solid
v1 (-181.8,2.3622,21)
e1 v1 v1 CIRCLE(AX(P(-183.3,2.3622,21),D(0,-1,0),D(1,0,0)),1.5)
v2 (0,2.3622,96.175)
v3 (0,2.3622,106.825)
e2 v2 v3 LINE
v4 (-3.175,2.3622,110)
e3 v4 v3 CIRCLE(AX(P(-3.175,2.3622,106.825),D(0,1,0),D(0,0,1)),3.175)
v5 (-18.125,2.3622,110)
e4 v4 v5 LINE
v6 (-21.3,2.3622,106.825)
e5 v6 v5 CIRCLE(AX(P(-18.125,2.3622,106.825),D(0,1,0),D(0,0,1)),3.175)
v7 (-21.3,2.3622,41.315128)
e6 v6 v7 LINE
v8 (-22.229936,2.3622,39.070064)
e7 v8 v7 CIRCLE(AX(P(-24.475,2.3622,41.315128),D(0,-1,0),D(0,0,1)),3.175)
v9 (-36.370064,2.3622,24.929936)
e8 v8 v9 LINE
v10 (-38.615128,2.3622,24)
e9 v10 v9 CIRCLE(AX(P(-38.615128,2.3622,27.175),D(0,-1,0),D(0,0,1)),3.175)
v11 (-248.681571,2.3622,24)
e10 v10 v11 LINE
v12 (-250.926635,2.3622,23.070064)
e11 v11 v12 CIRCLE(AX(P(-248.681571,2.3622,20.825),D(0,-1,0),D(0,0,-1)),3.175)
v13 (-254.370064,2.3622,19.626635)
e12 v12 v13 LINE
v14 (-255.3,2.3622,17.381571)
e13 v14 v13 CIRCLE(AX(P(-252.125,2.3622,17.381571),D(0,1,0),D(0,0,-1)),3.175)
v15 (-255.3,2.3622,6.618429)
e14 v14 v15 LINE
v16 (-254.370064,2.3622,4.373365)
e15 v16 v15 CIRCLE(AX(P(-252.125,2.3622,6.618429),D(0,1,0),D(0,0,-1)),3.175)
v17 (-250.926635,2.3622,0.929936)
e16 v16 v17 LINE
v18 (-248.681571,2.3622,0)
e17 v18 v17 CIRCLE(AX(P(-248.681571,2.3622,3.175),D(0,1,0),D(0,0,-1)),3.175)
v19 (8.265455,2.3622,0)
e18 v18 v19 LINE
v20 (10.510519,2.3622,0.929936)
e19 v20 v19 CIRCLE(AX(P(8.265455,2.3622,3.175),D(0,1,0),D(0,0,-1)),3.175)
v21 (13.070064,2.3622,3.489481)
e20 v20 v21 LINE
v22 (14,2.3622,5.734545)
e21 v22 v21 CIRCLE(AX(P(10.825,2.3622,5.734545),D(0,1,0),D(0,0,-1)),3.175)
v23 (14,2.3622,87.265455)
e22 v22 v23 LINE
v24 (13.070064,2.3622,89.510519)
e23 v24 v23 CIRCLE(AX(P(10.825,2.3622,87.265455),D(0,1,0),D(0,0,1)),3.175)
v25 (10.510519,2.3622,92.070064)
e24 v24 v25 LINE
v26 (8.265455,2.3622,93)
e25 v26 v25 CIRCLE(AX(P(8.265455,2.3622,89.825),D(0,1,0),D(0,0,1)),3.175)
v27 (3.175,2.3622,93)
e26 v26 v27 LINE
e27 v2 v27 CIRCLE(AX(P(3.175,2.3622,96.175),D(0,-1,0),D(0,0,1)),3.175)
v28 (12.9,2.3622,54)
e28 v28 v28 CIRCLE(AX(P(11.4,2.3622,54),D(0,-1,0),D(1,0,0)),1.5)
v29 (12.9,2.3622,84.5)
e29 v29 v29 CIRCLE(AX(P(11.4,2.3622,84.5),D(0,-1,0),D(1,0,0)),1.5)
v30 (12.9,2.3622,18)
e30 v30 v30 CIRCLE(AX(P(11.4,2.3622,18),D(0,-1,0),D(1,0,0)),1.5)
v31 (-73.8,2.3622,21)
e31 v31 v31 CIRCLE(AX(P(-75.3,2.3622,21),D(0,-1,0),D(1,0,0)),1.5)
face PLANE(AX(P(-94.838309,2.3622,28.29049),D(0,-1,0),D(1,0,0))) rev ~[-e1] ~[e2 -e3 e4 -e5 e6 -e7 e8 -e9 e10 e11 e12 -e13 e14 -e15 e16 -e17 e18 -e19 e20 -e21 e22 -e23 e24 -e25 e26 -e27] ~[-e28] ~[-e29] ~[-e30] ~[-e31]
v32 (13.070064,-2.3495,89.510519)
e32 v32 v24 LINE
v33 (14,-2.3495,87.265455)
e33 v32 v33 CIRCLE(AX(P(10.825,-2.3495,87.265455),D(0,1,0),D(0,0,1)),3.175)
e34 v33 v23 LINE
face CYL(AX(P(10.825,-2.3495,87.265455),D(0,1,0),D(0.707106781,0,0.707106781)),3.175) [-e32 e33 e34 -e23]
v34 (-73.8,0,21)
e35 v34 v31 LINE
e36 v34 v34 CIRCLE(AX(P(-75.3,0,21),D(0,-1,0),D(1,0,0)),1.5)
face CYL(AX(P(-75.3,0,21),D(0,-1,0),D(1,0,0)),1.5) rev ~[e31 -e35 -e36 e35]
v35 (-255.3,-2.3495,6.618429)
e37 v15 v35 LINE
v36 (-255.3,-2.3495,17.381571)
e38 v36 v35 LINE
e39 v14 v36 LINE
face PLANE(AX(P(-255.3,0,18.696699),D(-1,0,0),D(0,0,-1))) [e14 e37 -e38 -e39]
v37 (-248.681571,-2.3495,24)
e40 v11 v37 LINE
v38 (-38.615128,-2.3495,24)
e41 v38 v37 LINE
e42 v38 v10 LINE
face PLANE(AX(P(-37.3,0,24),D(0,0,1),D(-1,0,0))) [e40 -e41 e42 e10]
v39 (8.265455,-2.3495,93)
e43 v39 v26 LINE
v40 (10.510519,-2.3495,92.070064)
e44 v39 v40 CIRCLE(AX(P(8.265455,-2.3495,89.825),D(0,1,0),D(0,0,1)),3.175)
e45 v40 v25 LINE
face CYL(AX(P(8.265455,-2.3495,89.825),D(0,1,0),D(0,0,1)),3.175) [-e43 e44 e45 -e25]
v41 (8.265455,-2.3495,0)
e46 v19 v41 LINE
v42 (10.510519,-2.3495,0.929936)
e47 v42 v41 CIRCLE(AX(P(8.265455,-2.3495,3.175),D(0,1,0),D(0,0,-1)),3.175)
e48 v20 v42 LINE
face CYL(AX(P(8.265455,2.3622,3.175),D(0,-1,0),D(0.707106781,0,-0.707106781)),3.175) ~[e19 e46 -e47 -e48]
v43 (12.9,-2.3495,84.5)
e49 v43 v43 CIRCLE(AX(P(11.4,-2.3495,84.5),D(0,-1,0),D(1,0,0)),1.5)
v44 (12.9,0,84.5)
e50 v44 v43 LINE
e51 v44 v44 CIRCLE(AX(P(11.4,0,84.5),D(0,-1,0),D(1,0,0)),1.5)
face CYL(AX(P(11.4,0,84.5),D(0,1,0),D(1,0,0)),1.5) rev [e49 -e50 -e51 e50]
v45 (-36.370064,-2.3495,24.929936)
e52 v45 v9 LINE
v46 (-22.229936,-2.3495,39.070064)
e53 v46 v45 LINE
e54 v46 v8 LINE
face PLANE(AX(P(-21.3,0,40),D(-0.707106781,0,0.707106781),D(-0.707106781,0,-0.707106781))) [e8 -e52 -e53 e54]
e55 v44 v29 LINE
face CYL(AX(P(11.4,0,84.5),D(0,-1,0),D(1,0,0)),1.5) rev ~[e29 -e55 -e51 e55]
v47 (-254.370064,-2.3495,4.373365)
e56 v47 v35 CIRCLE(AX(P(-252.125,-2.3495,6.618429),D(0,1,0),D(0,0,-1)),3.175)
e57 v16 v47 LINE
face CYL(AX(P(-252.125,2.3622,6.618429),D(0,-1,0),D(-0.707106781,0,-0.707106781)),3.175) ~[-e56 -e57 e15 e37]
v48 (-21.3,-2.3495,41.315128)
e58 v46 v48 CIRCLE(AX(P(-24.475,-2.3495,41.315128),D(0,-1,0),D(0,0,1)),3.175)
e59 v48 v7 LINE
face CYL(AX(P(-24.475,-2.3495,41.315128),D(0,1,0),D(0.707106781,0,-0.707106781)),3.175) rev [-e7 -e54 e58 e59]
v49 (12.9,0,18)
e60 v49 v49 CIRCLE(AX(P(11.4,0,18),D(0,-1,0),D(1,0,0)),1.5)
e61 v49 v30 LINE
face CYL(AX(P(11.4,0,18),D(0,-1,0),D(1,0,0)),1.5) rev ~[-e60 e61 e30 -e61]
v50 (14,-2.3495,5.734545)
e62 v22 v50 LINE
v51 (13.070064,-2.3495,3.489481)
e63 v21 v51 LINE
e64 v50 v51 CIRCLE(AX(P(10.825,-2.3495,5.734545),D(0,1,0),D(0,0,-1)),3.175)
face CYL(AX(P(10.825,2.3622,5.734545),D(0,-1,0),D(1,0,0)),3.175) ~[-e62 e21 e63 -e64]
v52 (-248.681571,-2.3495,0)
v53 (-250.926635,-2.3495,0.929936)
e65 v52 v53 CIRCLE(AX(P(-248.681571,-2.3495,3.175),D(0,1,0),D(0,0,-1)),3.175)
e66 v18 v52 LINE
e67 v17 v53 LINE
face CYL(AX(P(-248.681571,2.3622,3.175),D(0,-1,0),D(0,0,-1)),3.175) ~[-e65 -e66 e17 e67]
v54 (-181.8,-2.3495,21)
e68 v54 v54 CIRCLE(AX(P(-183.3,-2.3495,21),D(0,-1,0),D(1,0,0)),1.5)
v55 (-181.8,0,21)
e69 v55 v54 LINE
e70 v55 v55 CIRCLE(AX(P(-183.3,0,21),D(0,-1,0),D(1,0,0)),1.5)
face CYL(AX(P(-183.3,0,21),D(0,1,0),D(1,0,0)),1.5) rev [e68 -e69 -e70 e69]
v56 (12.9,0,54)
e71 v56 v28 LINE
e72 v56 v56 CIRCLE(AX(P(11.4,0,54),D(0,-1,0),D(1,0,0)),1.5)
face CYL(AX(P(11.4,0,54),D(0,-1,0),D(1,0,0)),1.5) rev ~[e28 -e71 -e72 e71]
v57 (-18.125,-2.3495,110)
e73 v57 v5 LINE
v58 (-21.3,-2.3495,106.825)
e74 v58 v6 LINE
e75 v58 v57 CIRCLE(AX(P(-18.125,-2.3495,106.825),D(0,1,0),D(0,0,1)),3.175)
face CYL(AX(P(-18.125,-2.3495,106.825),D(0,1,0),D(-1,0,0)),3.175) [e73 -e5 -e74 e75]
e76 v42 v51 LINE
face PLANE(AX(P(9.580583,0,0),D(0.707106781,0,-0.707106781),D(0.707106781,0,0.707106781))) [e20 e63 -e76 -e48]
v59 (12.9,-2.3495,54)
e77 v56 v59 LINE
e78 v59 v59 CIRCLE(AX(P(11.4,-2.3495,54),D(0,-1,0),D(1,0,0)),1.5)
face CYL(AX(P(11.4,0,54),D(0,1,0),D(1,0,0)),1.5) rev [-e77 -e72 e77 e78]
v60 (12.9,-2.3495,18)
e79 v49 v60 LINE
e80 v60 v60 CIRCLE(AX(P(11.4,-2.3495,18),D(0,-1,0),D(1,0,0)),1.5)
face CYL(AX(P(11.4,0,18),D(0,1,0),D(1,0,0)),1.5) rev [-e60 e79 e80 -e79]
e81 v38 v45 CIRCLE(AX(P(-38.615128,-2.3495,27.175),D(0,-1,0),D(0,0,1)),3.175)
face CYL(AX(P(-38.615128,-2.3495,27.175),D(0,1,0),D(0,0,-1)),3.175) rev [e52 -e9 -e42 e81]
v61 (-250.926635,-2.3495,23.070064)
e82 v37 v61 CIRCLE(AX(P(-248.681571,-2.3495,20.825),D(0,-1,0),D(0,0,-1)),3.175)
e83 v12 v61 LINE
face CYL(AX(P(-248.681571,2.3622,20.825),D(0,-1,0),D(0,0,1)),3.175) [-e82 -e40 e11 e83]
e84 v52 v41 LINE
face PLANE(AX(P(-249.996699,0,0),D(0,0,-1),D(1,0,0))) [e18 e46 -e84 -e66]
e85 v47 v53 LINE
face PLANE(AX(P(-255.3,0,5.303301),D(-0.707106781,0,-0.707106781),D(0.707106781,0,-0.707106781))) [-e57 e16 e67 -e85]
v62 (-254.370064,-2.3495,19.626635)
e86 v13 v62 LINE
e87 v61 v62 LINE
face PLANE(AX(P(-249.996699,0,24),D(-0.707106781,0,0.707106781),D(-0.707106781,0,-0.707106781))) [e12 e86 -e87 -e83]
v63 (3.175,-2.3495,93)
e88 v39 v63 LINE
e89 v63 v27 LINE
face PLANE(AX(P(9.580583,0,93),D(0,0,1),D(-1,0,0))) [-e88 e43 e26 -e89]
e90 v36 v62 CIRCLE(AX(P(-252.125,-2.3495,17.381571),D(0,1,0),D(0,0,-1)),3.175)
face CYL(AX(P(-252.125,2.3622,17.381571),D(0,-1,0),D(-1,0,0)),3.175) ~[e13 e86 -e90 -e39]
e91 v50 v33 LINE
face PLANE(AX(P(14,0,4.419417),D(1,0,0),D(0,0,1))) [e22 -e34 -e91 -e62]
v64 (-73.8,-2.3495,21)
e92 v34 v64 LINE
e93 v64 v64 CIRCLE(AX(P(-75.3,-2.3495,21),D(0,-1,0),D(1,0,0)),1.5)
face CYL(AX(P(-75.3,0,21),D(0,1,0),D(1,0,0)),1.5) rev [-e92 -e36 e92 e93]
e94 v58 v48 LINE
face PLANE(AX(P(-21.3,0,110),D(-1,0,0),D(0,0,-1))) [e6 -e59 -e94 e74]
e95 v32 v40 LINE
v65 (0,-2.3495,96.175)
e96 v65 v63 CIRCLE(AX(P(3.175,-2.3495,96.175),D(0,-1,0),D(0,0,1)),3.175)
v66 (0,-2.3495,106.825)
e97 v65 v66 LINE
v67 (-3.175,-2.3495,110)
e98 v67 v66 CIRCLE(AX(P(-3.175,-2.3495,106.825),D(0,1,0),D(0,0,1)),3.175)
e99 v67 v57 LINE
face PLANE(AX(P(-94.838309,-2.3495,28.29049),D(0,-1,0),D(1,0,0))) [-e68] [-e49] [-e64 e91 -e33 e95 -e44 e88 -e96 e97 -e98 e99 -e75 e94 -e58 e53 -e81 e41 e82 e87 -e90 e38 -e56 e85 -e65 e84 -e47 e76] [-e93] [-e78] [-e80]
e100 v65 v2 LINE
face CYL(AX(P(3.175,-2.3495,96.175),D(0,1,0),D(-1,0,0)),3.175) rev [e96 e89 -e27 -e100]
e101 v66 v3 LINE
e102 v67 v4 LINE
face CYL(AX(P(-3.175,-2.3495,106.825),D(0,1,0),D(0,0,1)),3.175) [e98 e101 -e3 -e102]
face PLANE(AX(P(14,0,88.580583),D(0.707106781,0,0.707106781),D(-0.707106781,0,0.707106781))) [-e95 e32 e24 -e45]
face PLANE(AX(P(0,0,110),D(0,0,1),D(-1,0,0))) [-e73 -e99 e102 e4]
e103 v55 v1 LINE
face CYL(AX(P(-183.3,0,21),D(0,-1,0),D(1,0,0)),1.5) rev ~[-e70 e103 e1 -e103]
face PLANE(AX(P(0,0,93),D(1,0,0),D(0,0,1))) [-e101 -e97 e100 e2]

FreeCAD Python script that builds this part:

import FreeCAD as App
import Part
import Sketcher
from FreeCAD import Vector


def edges_at(feature, points):
    """Names of the edges that pass closest to the given points."""
    edges = feature.Shape.Edges
    near = lambda p: min(range(len(edges)), key=lambda i: edges[i].distToShape(Part.Vertex(*p))[0])
    return sorted({f"Edge{near(p) + 1}" for p in points})


def add_polygon(sketch, points):
    """Adds a closed chain of lines whose ends are joined by coincident constraints."""
    first, n = sketch.GeometryCount, len(points)
    for a, b in zip(points, points[1:] + points[:1]):
        sketch.addGeometry(Part.LineSegment(App.Vector(*a, 0), App.Vector(*b, 0)), False)
    for i in range(n):
        sketch.addConstraint(Sketcher.Constraint("Coincident", first + i, 2, first + (i + 1) % n, 1))

doc = App.newDocument("Part")
body = doc.addObject("PartDesign::Body", "Body")

sketch1 = doc.addObject("Sketcher::SketchObject", "Sketch")
body.addObject(sketch1)
sketch1.AttachmentSupport = (doc.XZ_Plane, [""])
sketch1.MapMode = "FlatFace"
add_polygon(sketch1, [(-37.3, 24), (-250, 24), (-255.3, 18.7), (-255.3, 5.3), (-250, 0), (9.6, 0), (14, 4.4), (14, 88.6), (9.6, 93), (0, 93), (0, 110), (-21.3, 110), (-21.3, 40)])
sketch1.addGeometry(Part.Circle(Vector(-183.3, 21, 0), Vector(0, 0, 1), 1.5), False)
sketch1.addGeometry(Part.Circle(Vector(-75.3, 21, 0), Vector(0, 0, 1), 1.5), False)
sketch1.addGeometry(Part.Circle(Vector(11.4, 18, 0), Vector(0, 0, 1), 1.5), False)
sketch1.addGeometry(Part.Circle(Vector(11.4, 54, 0), Vector(0, 0, 1), 1.5), False)
sketch1.addGeometry(Part.Circle(Vector(11.4, 84.5, 0), Vector(0, 0, 1), 1.5), False)
sketch1.addConstraint([
    Sketcher.Constraint("Horizontal", 0),
    Sketcher.Constraint("Vertical", 2),
    Sketcher.Constraint("Horizontal", 4),
    Sketcher.Constraint("Vertical", 6),
    Sketcher.Constraint("Horizontal", 8),
    Sketcher.Constraint("Vertical", 9),
    Sketcher.Constraint("Horizontal", 10),
    Sketcher.Constraint("Vertical", 11),
    Sketcher.Constraint("Equal", 13, 14),
    Sketcher.Constraint("Equal", 14, 15),
    Sketcher.Constraint("Equal", 15, 16),
    Sketcher.Constraint("Equal", 16, 17),
    Sketcher.Constraint("PointOnObject", 3, 2, -1),
    Sketcher.Constraint("PointOnObject", 8, 2, -2),
    Sketcher.Constraint("Perpendicular", 1, 3),
    Sketcher.Constraint("Perpendicular", 3, 5),
    Sketcher.Constraint("Perpendicular", 5, 7),
    Sketcher.Constraint("Perpendicular", 7, 12),
    Sketcher.Constraint("Horizontal", 13, 3, 14, 3),
    Sketcher.Constraint("Vertical", 15, 3, 16, 3),
    Sketcher.Constraint("Vertical", 16, 3, 17, 3),
    Sketcher.Constraint("Vertical", 0, 2, 3, 2),
    Sketcher.Constraint("Vertical", 4, 2, 7, 2),
    Sketcher.Constraint("Equal", 1, 3),
    Sketcher.Constraint("Diameter", 13, 3.0),
    Sketcher.Constraint("DistanceY", 9, 1, 9, 2, 17.0),
    Sketcher.Constraint("DistanceY", 11, 2, 11, 1, 70.0),
    Sketcher.Constraint("DistanceX", 10, 2, 10, 1, 21.3),
    Sketcher.Constraint("DistanceY", -1, 1, 13, 3, 21.0),
    Sketcher.Constraint("DistanceY", -1, 1, 15, 3, 18.0),
    Sketcher.Constraint("DistanceY", -1, 1, 16, 3, 54.0),
    Sketcher.Constraint("DistanceY", -1, 1, 0, 2, 24.0),
    Sketcher.Constraint("DistanceX", -1, 1, 5, 2, 14.0),
    Sketcher.Constraint("DistanceY", -1, 1, 7, 2, 93.0),
    Sketcher.Constraint("DistanceX", 13, 3, 14, 3, 108.0),
    Sketcher.Constraint("DistanceX", 1, 2, 13, 3, 72.0),
    Sketcher.Constraint("DistanceX", 14, 3, 12, 2, 38.0),
    Sketcher.Constraint("Distance", 1, 7.5),
    Sketcher.Constraint("DistanceX", -1, 1, 15, 3, 11.4),
    Sketcher.Constraint("DistanceY", -1, 1, 17, 3, 84.5),
    Sketcher.Constraint("Distance", 5, 6.249999),
])
pad1 = doc.addObject("PartDesign::Pad", "Pad")
body.addObject(pad1)
pad1.Profile = sketch1
pad1.Type = "TwoLengths"
pad1.Length = 2.3495
pad1.Length2 = 2.3622
doc.recompute()

fillet = doc.addObject("PartDesign::Fillet", "Fillet")
body.addObject(fillet)
fillet.Base = (pad1, edges_at(pad1, [
    (-249.997, 0.006, 24),
    (-255.3, 0.006, 18.697),
    (-255.3, 0.006, 5.303),
    (-249.997, 0.006, 0),
    (9.581, 0.006, 0),
    (14, 0.006, 4.419),
    (14, 0.006, 88.581),
    (9.581, 0.006, 93),
    (0, 0.006, 93),
    (0, 0.006, 110),
    (-21.3, 0.006, 110),
    (-21.3, 0.006, 40),
    (-37.3, 0.006, 24),
]))
fillet.Radius = 3.175

doc.recompute()
